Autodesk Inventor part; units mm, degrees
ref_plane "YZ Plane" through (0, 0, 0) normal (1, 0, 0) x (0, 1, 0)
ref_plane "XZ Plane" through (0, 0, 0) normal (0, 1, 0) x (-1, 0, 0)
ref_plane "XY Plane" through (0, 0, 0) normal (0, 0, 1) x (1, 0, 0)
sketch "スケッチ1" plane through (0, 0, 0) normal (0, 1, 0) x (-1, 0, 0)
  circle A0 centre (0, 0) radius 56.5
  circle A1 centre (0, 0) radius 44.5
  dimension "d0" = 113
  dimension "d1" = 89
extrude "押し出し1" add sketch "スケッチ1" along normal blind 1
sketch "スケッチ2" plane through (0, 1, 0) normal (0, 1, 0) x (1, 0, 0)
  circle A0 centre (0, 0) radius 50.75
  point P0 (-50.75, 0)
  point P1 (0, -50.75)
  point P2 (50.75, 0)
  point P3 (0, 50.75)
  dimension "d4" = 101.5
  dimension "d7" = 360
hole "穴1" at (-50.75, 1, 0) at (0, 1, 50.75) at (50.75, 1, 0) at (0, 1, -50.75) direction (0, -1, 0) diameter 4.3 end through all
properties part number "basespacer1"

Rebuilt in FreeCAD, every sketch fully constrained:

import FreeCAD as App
import Part
import Sketcher

doc = App.newDocument("Part")
body = doc.addObject("PartDesign::Body", "Body")

# Sketch on XZ plane
sketch1 = doc.addObject("Sketcher::SketchObject", "Sketch")
body.addObject(sketch1)
sketch1.AttachmentSupport = (doc.XZ_Plane, [""])
sketch1.MapMode = "FlatFace"
sketch1.addGeometry([
    Part.Circle(App.Vector(0, 0, 0), App.Vector(0, 0, 1), 56.5),
    Part.Circle(App.Vector(0, 0, 0), App.Vector(0, 0, 1), 44.5),
], False)
sketch1.addConstraint([
    Sketcher.Constraint("Coincident", 0, 3, -1, 1),
    Sketcher.Constraint("Coincident", 1, 3, -1, 1),
    Sketcher.Constraint("Diameter", 0, 113.0),
    Sketcher.Constraint("Diameter", 1, 89.0),
])
pad1 = doc.addObject("PartDesign::Pad", "Pad")
body.addObject(pad1)
pad1.Profile = sketch1
pad1.Length = 1
pad1.Reversed = True

# Sketch on XZ plane
sketch2 = doc.addObject("Sketcher::SketchObject", "Sketch001")
body.addObject(sketch2)
sketch2.AttachmentSupport = (doc.XZ_Plane, [""])
sketch2.MapMode = "FlatFace"
sketch2.AttachmentOffset = App.Placement(App.Vector(0, 0, -1), App.Rotation())
sketch2.addGeometry([
    Part.Circle(App.Vector(-50.75, 0, 0), App.Vector(0, 0, 1), 2.15),
    Part.Circle(App.Vector(0, 50.75, 0), App.Vector(0, 0, 1), 2.15),
    Part.Circle(App.Vector(50.75, 0, 0), App.Vector(0, 0, 1), 2.15),
    Part.Circle(App.Vector(0, -50.75, 0), App.Vector(0, 0, 1), 2.15),
], False)
sketch2.addConstraint([
    Sketcher.Constraint("Equal", 0, 1),
    Sketcher.Constraint("Equal", 1, 2),
    Sketcher.Constraint("Equal", 2, 3),
    Sketcher.Constraint("Symmetric", 0, 3, 2, 3, -1, 1),
    Sketcher.Constraint("Symmetric", 1, 3, 3, 3, -1, 1),
    Sketcher.Constraint("PointOnObject", 0, 3, -1),
    Sketcher.Constraint("PointOnObject", 1, 3, -2),
    Sketcher.Constraint("Diameter", 0, 4.3),
    Sketcher.Constraint("DistanceX", 0, 3, 2, 3, 101.5),
    Sketcher.Constraint("DistanceY", 3, 3, 1, 3, 101.5),
])
doc.recompute()
hole = doc.addObject("PartDesign::Hole", "Hole")
body.addObject(hole)
hole.Profile = sketch2
hole.ThreadType = "None"
hole.Diameter = 4.3
hole.DepthType = "ThroughAll"
hole.Reversed = True

doc.recompute()
